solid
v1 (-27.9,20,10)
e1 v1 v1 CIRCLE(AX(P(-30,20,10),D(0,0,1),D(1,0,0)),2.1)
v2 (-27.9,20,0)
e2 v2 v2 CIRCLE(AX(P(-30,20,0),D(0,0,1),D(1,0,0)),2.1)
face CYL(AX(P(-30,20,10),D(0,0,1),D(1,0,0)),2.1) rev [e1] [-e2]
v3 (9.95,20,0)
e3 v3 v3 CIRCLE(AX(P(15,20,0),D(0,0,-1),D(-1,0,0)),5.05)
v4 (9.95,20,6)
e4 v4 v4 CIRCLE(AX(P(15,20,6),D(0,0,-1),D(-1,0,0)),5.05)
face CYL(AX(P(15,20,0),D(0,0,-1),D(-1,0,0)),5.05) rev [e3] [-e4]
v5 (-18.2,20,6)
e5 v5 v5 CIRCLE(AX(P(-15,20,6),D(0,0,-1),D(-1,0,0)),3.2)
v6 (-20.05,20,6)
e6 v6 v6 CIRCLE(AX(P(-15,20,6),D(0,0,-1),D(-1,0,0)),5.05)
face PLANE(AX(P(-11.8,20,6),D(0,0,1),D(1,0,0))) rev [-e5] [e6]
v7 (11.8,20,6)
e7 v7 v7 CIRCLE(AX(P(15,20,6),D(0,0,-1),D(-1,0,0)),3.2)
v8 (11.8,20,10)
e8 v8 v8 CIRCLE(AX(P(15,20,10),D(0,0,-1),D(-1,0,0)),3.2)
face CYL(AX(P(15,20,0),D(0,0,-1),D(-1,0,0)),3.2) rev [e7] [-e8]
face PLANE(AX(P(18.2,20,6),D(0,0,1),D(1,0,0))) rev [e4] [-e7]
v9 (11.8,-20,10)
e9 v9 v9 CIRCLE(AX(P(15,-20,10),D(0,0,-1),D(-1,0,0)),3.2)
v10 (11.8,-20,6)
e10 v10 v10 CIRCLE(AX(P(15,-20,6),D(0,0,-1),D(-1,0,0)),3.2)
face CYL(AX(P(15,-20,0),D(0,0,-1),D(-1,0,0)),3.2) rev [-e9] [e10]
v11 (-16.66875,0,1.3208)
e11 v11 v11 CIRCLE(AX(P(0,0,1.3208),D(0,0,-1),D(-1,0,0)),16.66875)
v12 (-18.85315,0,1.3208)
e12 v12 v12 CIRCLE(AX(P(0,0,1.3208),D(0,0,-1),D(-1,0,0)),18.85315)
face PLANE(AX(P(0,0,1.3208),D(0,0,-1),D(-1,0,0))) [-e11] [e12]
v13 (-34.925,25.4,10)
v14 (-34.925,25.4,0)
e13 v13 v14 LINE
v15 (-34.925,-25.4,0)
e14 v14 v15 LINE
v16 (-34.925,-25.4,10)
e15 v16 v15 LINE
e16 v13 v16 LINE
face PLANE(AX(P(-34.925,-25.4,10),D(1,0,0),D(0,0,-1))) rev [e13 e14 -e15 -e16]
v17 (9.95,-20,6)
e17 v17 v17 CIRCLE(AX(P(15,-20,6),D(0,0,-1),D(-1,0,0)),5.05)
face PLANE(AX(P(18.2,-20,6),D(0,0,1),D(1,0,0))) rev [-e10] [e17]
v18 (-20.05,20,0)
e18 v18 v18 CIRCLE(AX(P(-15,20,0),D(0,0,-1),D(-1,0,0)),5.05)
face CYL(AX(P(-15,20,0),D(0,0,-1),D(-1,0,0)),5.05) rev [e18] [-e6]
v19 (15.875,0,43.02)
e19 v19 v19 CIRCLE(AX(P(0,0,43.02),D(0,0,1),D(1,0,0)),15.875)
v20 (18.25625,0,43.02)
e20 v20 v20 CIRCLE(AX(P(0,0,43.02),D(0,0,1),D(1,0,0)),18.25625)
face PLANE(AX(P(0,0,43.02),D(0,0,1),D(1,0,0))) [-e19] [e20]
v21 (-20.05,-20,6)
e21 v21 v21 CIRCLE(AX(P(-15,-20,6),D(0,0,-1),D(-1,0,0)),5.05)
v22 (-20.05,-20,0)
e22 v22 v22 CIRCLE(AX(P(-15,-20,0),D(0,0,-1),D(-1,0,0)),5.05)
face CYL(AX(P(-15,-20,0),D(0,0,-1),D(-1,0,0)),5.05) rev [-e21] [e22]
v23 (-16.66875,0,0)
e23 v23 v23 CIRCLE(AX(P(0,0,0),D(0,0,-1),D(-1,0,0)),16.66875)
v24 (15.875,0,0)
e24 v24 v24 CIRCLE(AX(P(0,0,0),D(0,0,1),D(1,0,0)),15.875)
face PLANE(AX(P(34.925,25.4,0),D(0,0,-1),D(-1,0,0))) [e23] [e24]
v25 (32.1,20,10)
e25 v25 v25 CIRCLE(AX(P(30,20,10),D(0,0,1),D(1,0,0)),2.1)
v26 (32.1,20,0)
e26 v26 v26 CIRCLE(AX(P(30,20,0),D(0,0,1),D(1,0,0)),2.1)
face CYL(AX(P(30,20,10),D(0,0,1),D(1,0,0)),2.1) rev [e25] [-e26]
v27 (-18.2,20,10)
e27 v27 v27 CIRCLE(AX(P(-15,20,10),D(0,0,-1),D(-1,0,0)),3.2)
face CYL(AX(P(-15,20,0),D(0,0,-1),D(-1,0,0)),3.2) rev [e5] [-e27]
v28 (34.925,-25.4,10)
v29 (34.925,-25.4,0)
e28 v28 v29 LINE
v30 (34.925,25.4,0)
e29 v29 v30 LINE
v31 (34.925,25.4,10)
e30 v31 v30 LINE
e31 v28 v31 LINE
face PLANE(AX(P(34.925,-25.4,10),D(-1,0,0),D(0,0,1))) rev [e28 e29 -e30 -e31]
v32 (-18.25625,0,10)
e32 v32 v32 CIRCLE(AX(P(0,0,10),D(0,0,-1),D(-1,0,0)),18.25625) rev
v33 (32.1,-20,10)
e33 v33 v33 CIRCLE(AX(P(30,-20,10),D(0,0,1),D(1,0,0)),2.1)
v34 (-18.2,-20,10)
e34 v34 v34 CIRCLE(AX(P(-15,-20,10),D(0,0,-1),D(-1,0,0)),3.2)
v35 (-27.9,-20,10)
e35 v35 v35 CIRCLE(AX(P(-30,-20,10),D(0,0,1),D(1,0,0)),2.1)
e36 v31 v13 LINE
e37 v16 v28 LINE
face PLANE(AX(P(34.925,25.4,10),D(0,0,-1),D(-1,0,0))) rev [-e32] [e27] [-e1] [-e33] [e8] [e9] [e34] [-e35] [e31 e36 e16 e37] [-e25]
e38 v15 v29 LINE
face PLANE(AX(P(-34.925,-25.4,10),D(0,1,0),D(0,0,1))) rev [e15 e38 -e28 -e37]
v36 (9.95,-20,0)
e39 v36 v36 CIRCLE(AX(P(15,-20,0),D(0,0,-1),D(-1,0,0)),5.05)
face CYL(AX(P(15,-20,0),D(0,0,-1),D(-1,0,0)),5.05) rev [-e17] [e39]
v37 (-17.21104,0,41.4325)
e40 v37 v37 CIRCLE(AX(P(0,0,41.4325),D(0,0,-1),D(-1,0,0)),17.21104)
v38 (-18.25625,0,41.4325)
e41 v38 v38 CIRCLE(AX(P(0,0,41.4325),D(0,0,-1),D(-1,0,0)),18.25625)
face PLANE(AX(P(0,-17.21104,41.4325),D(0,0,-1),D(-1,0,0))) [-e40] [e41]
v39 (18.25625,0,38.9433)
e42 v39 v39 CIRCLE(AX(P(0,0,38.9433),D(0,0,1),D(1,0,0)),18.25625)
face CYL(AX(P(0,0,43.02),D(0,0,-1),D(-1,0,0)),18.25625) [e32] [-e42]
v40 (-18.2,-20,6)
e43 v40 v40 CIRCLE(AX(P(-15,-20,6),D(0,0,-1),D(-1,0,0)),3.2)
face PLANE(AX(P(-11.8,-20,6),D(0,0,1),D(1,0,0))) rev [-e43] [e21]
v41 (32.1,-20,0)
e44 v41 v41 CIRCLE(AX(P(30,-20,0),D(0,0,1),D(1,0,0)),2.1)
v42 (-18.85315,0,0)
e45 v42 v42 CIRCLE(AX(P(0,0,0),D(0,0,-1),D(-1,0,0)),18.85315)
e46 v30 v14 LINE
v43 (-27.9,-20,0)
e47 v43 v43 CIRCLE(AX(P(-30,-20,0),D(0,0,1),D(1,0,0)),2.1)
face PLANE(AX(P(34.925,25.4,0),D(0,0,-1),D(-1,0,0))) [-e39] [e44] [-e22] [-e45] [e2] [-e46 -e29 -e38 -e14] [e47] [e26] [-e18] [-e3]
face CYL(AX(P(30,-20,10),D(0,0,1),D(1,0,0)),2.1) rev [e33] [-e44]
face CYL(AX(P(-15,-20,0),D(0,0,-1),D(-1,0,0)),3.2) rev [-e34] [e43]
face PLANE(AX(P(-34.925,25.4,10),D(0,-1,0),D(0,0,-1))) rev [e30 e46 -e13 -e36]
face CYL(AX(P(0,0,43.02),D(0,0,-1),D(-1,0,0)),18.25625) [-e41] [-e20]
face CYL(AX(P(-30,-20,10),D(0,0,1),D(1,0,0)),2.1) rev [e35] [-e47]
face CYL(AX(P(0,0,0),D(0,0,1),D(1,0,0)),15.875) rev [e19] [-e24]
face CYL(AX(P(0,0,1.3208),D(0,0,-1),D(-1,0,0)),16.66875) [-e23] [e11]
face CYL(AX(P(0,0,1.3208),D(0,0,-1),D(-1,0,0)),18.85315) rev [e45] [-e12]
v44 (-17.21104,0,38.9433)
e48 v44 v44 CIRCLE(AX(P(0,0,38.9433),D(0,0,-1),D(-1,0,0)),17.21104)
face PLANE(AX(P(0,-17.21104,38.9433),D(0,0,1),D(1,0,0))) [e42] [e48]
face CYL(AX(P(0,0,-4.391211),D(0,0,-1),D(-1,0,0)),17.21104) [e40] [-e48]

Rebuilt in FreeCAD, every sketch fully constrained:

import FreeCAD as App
import Part
import Sketcher

V = App.Vector
Q = App.Units.Quantity

doc = App.newDocument("Part")
params = doc.addObject("Spreadsheet::Sheet", "Params")
for row, (alias, value) in enumerate([
    ("sketch1_height", "2 in"),
    ("sketch1_width", "2.75 in"),
    ("pad1_length", "10 mm"),
    ("sketch2_diameter", "1.25 in"),
    ("hole_diameter", "4.2 mm"),
    ("hole2_diameter", "6.4 mm"),
    ("hole2_cbore_diameter", "10.1 mm"),
    ("hole2_cbore_depth", "6 mm"),
    ("hole3_diameter", "4.2 mm"),
    ("hole4_diameter", "6.4 mm"),
    ("hole4_cbore_diameter", "10.1 mm"),
    ("hole4_cbore_depth", "6 mm"),
    ("sketch7_diameter", "1.25 in"),
    ("sketch7_diameter2", "1.4375 in"),
    ("pad2_length", "1.3 in"),
    ("sketch8_diameter", "1.3125 in"),
    ("pocket2_length", "0.052 in"),
    ("sketch9_width", "0.051 in"),
    ("sketch9_height", "0.098 in"),
    ("groove_angle", "360 deg"),
], start=1):
    params.set(f"A{row}", alias)
    params.set(f"B{row}", "=" + value)
    params.setAlias(f"B{row}", alias)

body = doc.addObject("PartDesign::Body", "Body")

# Sketch on XY plane
sketch1 = doc.addObject("Sketcher::SketchObject", "Sketch")
body.addObject(sketch1)
sketch1.AttachmentSupport = (doc.XY_Plane, [""])
sketch1.MapMode = "FlatFace"
sketch1.addGeometry([
    Part.LineSegment(V(-34.925, 25.4, 0), V(-34.925, -25.4, 0)),
    Part.LineSegment(V(-34.925, -25.4, 0), V(34.925, -25.4, 0)),
    Part.LineSegment(V(34.925, -25.4, 0), V(34.925, 25.4, 0)),
    Part.LineSegment(V(34.925, 25.4, 0), V(-34.925, 25.4, 0)),
], False)
sketch1.addConstraint([
    Sketcher.Constraint("Coincident", 0, 2, 1, 1),
    Sketcher.Constraint("Coincident", 1, 2, 2, 1),
    Sketcher.Constraint("Coincident", 2, 2, 3, 1),
    Sketcher.Constraint("Coincident", 3, 2, 0, 1),
    Sketcher.Constraint("Vertical", 0),
    Sketcher.Constraint("Horizontal", 1),
    Sketcher.Constraint("Vertical", 2),
    Sketcher.Constraint("Horizontal", 3),
    Sketcher.Constraint("Symmetric", 0, 2, 2, 2, -1, 1),
    Sketcher.Constraint("DistanceY", 0, 2, 0, 1, Q("2 in")),
    Sketcher.Constraint("DistanceX", 1, 1, 1, 2, Q("2.75 in")),
])
sketch1.setExpression("Constraints[9]", "Params.sketch1_height")
sketch1.setExpression("Constraints[10]", "Params.sketch1_width")
pad1 = doc.addObject("PartDesign::Pad", "Pad")
body.addObject(pad1)
pad1.Profile = sketch1
pad1.setExpression("Length", "Params.pad1_length")

# Sketch on XY plane
sketch2 = doc.addObject("Sketcher::SketchObject", "Sketch001")
body.addObject(sketch2)
sketch2.AttachmentSupport = (doc.XY_Plane, [""])
sketch2.MapMode = "FlatFace"
sketch2.AttachmentOffset = App.Placement(V(0, 0, 10), App.Rotation())
sketch2.addGeometry(Part.Circle(V(0, 0, 0), V(0, 0, 1), 15.875), False)
sketch2.addConstraint([
    Sketcher.Constraint("Coincident", 0, 3, -1, 1),
    Sketcher.Constraint("Diameter", 0, Q("1.25 in")),
])
sketch2.setExpression("Constraints[1]", "Params.sketch2_diameter")
pocket1 = doc.addObject("PartDesign::Pocket", "Pocket")
body.addObject(pocket1)
pocket1.Profile = sketch2
pocket1.Type = "ThroughAll"

# Sketch on XY plane
sketch3 = doc.addObject("Sketcher::SketchObject", "Sketch002")
body.addObject(sketch3)
sketch3.AttachmentSupport = (doc.XY_Plane, [""])
sketch3.MapMode = "FlatFace"
sketch3.AttachmentOffset = App.Placement(V(0, 0, 10), App.Rotation())
sketch3.addGeometry(Part.Circle(V(30, 20, 0), V(0, 0, 1), 2.1), False)
sketch3.addConstraint([
    Sketcher.Constraint("Diameter", 0, Q("4.2 mm")),
    Sketcher.Constraint("DistanceX", -1, 1, 0, 3, Q("30 mm")),
    Sketcher.Constraint("DistanceY", -1, 1, 0, 3, Q("20 mm")),
])
doc.recompute()
hole = doc.addObject("PartDesign::Hole", "Hole")
body.addObject(hole)
hole.Profile = sketch3
hole.ThreadType = "None"
hole.setExpression("Diameter", "Params.hole_diameter")
hole.DepthType = "ThroughAll"

# Sketch on XY plane
sketch4 = doc.addObject("Sketcher::SketchObject", "Sketch003")
body.addObject(sketch4)
sketch4.AttachmentSupport = (doc.XY_Plane, [""])
sketch4.MapMode = "FlatFace"
sketch4.addGeometry(Part.Circle(V(15, 20, 0), V(0, 0, 1), 3.2), False)
sketch4.addConstraint([
    Sketcher.Constraint("Diameter", 0, Q("6.4 mm")),
    Sketcher.Constraint("DistanceX", -1, 1, 0, 3, Q("15 mm")),
    Sketcher.Constraint("DistanceY", -1, 1, 0, 3, Q("20 mm")),
])
doc.recompute()
hole2 = doc.addObject("PartDesign::Hole", "Hole001")
body.addObject(hole2)
hole2.Profile = sketch4
hole2.ThreadType = "None"
hole2.setExpression("Diameter", "Params.hole2_diameter")
hole2.DepthType = "ThroughAll"
hole2.HoleCutType = "Counterbore"
hole2.setExpression("HoleCutDiameter", "Params.hole2_cbore_diameter")
hole2.setExpression("HoleCutDepth", "Params.hole2_cbore_depth")
hole2.Reversed = True
doc.recompute()

mirrored = doc.addObject("PartDesign::Mirrored", "Mirrored")
body.addObject(mirrored)
mirrored.Originals = [hole, hole2]
mirrored.MirrorPlane = (doc.XZ_Plane, [""])
body.Tip = mirrored
doc.recompute()

mirrored2 = doc.addObject("PartDesign::Mirrored", "Mirrored001")
body.addObject(mirrored2)
mirrored2.Originals = [hole, hole2]
mirrored2.MirrorPlane = (doc.YZ_Plane, [""])
body.Tip = mirrored2

# Sketch on XY plane
sketch5 = doc.addObject("Sketcher::SketchObject", "Sketch004")
body.addObject(sketch5)
sketch5.AttachmentSupport = (doc.XY_Plane, [""])
sketch5.MapMode = "FlatFace"
sketch5.AttachmentOffset = App.Placement(V(0, 0, 10), App.Rotation())
sketch5.addGeometry(Part.Circle(V(-30, -20, 0), V(0, 0, 1), 2.1), False)
sketch5.addConstraint([
    Sketcher.Constraint("Diameter", 0, Q("4.2 mm")),
    Sketcher.Constraint("DistanceX", 0, 3, -1, 1, Q("30 mm")),
    Sketcher.Constraint("DistanceY", 0, 3, -1, 1, Q("20 mm")),
])
doc.recompute()
hole3 = doc.addObject("PartDesign::Hole", "Hole002")
body.addObject(hole3)
hole3.Profile = sketch5
hole3.ThreadType = "None"
hole3.setExpression("Diameter", "Params.hole3_diameter")
hole3.DepthType = "ThroughAll"

# Sketch on XY plane
sketch6 = doc.addObject("Sketcher::SketchObject", "Sketch005")
body.addObject(sketch6)
sketch6.AttachmentSupport = (doc.XY_Plane, [""])
sketch6.MapMode = "FlatFace"
sketch6.addGeometry(Part.Circle(V(-15, -20, 0), V(0, 0, 1), 3.2), False)
sketch6.addConstraint([
    Sketcher.Constraint("Diameter", 0, Q("6.4 mm")),
    Sketcher.Constraint("DistanceX", 0, 3, -1, 1, Q("15 mm")),
    Sketcher.Constraint("DistanceY", 0, 3, -1, 1, Q("20 mm")),
])
doc.recompute()
hole4 = doc.addObject("PartDesign::Hole", "Hole003")
body.addObject(hole4)
hole4.Profile = sketch6
hole4.ThreadType = "None"
hole4.setExpression("Diameter", "Params.hole4_diameter")
hole4.DepthType = "ThroughAll"
hole4.HoleCutType = "Counterbore"
hole4.setExpression("HoleCutDiameter", "Params.hole4_cbore_diameter")
hole4.setExpression("HoleCutDepth", "Params.hole4_cbore_depth")
hole4.Reversed = True

# Sketch on XY plane
sketch7 = doc.addObject("Sketcher::SketchObject", "Sketch006")
body.addObject(sketch7)
sketch7.AttachmentSupport = (doc.XY_Plane, [""])
sketch7.MapMode = "FlatFace"
sketch7.AttachmentOffset = App.Placement(V(0, 0, 10), App.Rotation())
sketch7.addGeometry([
    Part.Circle(V(0, 0, 0), V(0, 0, 1), 18.25625),
    Part.Circle(V(0, 0, 0), V(0, 0, 1), 15.875),
], False)
sketch7.addConstraint([
    Sketcher.Constraint("Coincident", 0, 3, -1, 1),
    Sketcher.Constraint("Coincident", 1, 3, -1, 1),
    Sketcher.Constraint("Diameter", 1, Q("1.25 in")),
    Sketcher.Constraint("Diameter", 0, Q("1.4375 in")),
])
sketch7.setExpression("Constraints[2]", "Params.sketch7_diameter")
sketch7.setExpression("Constraints[3]", "Params.sketch7_diameter2")
pad2 = doc.addObject("PartDesign::Pad", "Pad001")
body.addObject(pad2)
pad2.Profile = sketch7
pad2.setExpression("Length", "Params.pad2_length")

# Sketch on XY plane
sketch8 = doc.addObject("Sketcher::SketchObject", "Sketch007")
body.addObject(sketch8)
sketch8.AttachmentSupport = (doc.XY_Plane, [""])
sketch8.MapMode = "FlatFace"
sketch8.addGeometry([
    Part.Circle(V(0, 0, 0), V(0, 0, 1), 18.85315),
    Part.Circle(V(0, 0, 0), V(0, 0, 1), 16.66875),
], False)
sketch8.addConstraint([
    Sketcher.Constraint("Coincident", 0, 3, -1, 1),
    Sketcher.Constraint("Coincident", 1, 3, -1, 1),
    Sketcher.Constraint("Diameter", 1, Q("1.3125 in")),
    Sketcher.Constraint("Diameter", 0, Q("1.4845 in")),
])
sketch8.setExpression("Constraints[2]", "Params.sketch8_diameter")
pocket2 = doc.addObject("PartDesign::Pocket", "Pocket001")
body.addObject(pocket2)
pocket2.Profile = sketch8
pocket2.setExpression("Length", "Params.pocket2_length")
pocket2.Reversed = True

# Sketch on YZ plane
sketch9 = doc.addObject("Sketcher::SketchObject", "Sketch008")
body.addObject(sketch9)
sketch9.AttachmentSupport = (doc.YZ_Plane, [""])
sketch9.MapMode = "FlatFace"
sketch9.addGeometry([
    Part.LineSegment(V(-17.21104, 41.4325, 0), V(-18.50644, 41.4325, 0)),
    Part.LineSegment(V(-18.50644, 41.4325, 0), V(-18.50644, 38.9433, 0)),
    Part.LineSegment(V(-18.50644, 38.9433, 0), V(-17.21104, 38.9433, 0)),
    Part.LineSegment(V(-17.21104, 38.9433, 0), V(-17.21104, 41.4325, 0)),
], False)
sketch9.addConstraint([
    Sketcher.Constraint("Coincident", 0, 2, 1, 1),
    Sketcher.Constraint("Coincident", 1, 2, 2, 1),
    Sketcher.Constraint("Coincident", 2, 2, 3, 1),
    Sketcher.Constraint("Coincident", 3, 2, 0, 1),
    Sketcher.Constraint("Horizontal", 0),
    Sketcher.Constraint("Vertical", 1),
    Sketcher.Constraint("Horizontal", 2),
    Sketcher.Constraint("Vertical", 3),
    Sketcher.Constraint("DistanceX", 0, 2, 0, 1, Q("0.051 in")),
    Sketcher.Constraint("DistanceY", 1, 2, 1, 1, Q("0.098 in")),
    Sketcher.Constraint("DistanceX", 0, 2, -1, 1, Q("0.7286 in")),
    Sketcher.Constraint("DistanceY", -1, 1, 0, 2, Q("41.4325 mm")),
])
sketch9.setExpression("Constraints[8]", "Params.sketch9_width")
sketch9.setExpression("Constraints[9]", "Params.sketch9_height")
groove = doc.addObject("PartDesign::Groove", "Groove")
body.addObject(groove)
groove.Profile = sketch9
groove.ReferenceAxis = (sketch9, ["V_Axis"])
groove.setExpression("Angle", "Params.groove_angle")

doc.recompute()
